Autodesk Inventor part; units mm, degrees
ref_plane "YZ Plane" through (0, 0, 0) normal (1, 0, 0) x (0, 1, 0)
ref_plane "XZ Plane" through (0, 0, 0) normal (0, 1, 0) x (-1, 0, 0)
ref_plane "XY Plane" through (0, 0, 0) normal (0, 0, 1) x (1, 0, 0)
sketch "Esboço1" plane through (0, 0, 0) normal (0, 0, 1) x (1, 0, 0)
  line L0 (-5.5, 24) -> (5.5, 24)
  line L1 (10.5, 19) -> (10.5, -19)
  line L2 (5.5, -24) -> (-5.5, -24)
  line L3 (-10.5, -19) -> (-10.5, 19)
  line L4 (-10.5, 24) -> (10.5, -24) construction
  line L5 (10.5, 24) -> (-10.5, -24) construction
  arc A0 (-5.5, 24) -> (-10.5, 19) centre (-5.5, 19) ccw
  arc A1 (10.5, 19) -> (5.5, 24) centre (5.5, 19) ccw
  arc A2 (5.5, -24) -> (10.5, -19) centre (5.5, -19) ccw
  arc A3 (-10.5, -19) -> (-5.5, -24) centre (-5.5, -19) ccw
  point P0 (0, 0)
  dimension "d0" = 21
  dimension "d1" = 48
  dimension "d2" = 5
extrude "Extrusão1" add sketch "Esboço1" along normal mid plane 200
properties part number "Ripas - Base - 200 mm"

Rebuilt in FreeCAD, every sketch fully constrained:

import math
import FreeCAD as App
import Part
import Sketcher

V = App.Vector

doc = App.newDocument("Part")
params = doc.addObject("Spreadsheet::Sheet", "Params")
for row, (alias, value) in enumerate([
    ("sketch1_radius", "5 mm"),
    ("sketch1_height", "38 mm"),
    ("pad1_length", "200 mm"),
], start=1):
    params.set(f"A{row}", alias)
    params.set(f"B{row}", "=" + value)
    params.setAlias(f"B{row}", alias)

body = doc.addObject("PartDesign::Body", "Body")

# Sketch on XY plane
sketch1 = doc.addObject("Sketcher::SketchObject", "Sketch")
body.addObject(sketch1)
sketch1.AttachmentSupport = (doc.XY_Plane, [""])
sketch1.MapMode = "FlatFace"
sketch1.addGeometry([
    Part.LineSegment(V(6, 24, 0), V(-6, 24, 0)),  # 0
    Part.ArcOfCircle(Part.Circle(V(-6, 19, 0), V(0, 0, 1), 5), math.radians(90), math.radians(180)),  # 1
    Part.LineSegment(V(-10, 19, 0), V(-10, -19, 0)),  # 2
    Part.ArcOfCircle(Part.Circle(V(-6, -19, 0), V(0, 0, 1), 5), math.radians(180), math.radians(270)),  # 3
    Part.LineSegment(V(-6, -24, 0), V(6, -24, 0)),  # 4
    Part.ArcOfCircle(Part.Circle(V(6, -19, 0), V(0, 0, 1), 5), math.radians(-90), math.radians(0)),  # 5
    Part.LineSegment(V(10, -19, 0), V(10, 19, 0)),  # 6
    Part.ArcOfCircle(Part.Circle(V(6, 19, 0), V(0, 0, 1), 5), math.radians(0), math.radians(90)),  # 7
], False)
sketch1.addConstraint([
    Sketcher.Constraint("Tangent", 0, 2, 1, 1),
    Sketcher.Constraint("Tangent", 1, 2, 2, 1),
    Sketcher.Constraint("Tangent", 2, 2, 3, 1),
    Sketcher.Constraint("Tangent", 3, 2, 4, 1),
    Sketcher.Constraint("Tangent", 4, 2, 5, 1),
    Sketcher.Constraint("Tangent", 5, 2, 6, 1),
    Sketcher.Constraint("Tangent", 6, 2, 7, 1),
    Sketcher.Constraint("Tangent", 7, 2, 0, 1),
    Sketcher.Constraint("Horizontal", 0),
    Sketcher.Constraint("Vertical", 2),
    Sketcher.Constraint("Horizontal", 4),
    Sketcher.Constraint("Vertical", 6),
    Sketcher.Constraint("Equal", 1, 3),
    Sketcher.Constraint("Equal", 3, 5),
    Sketcher.Constraint("Equal", 5, 7),
    Sketcher.Constraint("Symmetric", 1, 3, 5, 3, -1, 1),
    Sketcher.Constraint("Radius", 1, 5.0),
    Sketcher.Constraint("DistanceX", 2, 2, 5, 2, 21.0),
    Sketcher.Constraint("DistanceY", 2, 2, 2, 1, 38.0),
])
sketch1.setExpression("Constraints[16]", "Params.sketch1_radius")
sketch1.setExpression("Constraints[18]", "Params.sketch1_height")
pad1 = doc.addObject("PartDesign::Pad", "Pad")
body.addObject(pad1)
pad1.Profile = sketch1
pad1.setExpression("Length", "Params.pad1_length")
pad1.Midplane = True

doc.recompute()
